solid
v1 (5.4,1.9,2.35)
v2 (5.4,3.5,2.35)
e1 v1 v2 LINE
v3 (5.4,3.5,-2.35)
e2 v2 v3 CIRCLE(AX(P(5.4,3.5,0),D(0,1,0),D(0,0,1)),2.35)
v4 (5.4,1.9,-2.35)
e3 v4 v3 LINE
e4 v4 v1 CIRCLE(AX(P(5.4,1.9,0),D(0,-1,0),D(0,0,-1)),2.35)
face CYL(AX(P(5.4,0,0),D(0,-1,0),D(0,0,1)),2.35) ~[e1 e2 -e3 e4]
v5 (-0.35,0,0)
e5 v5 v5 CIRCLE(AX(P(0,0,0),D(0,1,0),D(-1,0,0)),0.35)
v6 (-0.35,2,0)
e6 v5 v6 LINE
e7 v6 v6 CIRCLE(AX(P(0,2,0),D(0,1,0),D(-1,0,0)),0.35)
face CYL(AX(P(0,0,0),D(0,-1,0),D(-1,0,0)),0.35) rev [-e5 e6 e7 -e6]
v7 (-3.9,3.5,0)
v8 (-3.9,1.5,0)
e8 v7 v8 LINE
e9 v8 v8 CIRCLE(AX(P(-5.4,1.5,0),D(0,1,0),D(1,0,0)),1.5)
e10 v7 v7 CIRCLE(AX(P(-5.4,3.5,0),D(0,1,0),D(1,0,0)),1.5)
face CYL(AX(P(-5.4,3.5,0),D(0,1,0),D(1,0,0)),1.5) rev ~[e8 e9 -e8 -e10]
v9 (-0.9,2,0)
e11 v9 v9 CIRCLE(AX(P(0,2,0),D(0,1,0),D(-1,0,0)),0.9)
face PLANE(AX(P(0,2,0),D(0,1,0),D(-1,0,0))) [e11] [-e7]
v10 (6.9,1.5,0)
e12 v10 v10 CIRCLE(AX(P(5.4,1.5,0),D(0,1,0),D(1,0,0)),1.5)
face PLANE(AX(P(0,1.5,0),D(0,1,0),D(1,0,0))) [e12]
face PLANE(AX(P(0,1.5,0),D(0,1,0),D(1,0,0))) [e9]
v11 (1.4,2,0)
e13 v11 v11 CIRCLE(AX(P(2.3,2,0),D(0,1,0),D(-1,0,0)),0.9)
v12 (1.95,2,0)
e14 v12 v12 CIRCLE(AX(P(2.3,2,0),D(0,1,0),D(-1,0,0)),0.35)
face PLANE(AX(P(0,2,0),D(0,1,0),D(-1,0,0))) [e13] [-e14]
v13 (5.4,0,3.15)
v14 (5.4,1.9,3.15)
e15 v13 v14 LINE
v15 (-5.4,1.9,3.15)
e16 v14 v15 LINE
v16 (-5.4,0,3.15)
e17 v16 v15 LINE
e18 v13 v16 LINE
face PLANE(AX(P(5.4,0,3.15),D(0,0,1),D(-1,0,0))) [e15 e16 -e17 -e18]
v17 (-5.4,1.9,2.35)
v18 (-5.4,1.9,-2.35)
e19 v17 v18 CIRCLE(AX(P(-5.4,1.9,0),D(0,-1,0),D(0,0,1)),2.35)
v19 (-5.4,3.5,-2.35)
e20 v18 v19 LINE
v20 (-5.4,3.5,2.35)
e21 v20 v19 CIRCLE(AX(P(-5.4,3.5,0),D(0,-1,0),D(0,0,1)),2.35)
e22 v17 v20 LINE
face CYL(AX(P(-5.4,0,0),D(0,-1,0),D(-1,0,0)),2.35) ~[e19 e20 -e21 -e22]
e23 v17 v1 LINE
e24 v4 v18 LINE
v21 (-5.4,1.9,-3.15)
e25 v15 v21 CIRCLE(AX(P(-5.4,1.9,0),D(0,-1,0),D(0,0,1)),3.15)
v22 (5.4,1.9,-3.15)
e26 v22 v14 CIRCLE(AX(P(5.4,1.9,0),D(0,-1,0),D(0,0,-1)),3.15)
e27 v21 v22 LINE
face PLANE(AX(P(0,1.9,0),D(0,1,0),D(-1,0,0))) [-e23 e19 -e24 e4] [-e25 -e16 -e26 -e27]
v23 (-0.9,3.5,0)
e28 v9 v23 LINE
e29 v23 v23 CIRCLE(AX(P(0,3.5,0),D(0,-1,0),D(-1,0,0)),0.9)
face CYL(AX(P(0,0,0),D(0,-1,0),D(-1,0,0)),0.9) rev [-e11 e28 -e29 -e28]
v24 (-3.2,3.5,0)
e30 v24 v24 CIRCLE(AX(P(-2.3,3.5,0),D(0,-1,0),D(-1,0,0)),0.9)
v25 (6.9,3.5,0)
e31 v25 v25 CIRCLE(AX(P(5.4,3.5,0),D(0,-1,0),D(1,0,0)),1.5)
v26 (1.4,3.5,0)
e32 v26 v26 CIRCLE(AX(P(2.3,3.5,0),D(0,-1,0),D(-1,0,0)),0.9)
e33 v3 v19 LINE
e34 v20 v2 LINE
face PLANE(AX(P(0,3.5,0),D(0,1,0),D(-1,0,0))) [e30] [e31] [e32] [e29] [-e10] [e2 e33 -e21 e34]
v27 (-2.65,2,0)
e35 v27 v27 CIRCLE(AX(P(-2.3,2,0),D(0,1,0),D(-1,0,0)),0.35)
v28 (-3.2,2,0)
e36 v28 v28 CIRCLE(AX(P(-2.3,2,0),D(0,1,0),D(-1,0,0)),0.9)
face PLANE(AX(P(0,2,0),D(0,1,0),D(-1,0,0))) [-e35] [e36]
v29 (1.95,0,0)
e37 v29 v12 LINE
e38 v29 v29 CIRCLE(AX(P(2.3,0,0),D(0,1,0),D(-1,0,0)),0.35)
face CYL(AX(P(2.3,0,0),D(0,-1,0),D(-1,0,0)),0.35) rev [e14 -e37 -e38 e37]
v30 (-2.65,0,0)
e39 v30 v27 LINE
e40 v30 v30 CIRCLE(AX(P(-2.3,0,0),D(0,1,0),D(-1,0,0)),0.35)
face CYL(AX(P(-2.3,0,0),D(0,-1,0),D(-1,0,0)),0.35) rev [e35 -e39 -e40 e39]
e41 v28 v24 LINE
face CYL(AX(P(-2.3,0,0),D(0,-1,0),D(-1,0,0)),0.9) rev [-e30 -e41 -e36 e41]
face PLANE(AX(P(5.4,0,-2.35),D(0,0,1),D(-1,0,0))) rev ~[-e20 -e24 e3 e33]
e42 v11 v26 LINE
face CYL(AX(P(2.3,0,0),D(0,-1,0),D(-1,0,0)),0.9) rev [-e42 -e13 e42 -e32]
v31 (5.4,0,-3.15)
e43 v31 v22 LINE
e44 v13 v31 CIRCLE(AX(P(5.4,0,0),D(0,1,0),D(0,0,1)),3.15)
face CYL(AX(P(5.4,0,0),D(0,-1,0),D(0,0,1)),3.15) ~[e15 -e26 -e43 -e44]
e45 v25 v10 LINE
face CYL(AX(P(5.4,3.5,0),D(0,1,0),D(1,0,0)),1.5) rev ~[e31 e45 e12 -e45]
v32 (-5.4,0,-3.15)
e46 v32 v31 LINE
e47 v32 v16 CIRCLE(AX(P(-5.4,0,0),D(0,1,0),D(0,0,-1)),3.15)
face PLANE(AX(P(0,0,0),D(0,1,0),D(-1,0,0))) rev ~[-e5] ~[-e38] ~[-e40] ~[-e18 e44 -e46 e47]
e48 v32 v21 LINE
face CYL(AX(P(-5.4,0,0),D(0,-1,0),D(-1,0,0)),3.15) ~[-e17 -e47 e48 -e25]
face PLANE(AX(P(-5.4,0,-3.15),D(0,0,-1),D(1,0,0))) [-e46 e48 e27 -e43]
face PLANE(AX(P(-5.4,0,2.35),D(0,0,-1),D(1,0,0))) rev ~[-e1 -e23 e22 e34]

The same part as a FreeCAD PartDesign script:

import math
import FreeCAD as App
import Part
import Sketcher

doc = App.newDocument("Part")
params = doc.addObject("Spreadsheet::Sheet", "Params")
for row, (alias, value) in enumerate([
    ("sketch1_radius", "2.35 mm"),
    ("sketch1_width", "10.8 mm"),
    ("pad1_length", "3.5 mm"),
    ("sketch2_radius", "3.15 mm"),
    ("sketch2_radius2", "2.35 mm"),
    ("sketch2_width", "10.8 mm"),
    ("pad2_length", "1.9 mm"),
    ("sketch3_diameter", "1.8 mm"),
    ("sketch4_diameter", "1.8 mm"),
    ("sketch4_diameter2", "0.7 mm"),
    ("pad3_length", "2 mm"),
    ("sketch5_diameter", "3 mm"),
    ("pocket2_length", "2 mm"),
], start=1):
    params.set(f"A{row}", alias)
    params.set(f"B{row}", "=" + value)
    params.setAlias(f"B{row}", alias)

body = doc.addObject("PartDesign::Body", "Body")

sketch1 = body.newObject("Sketcher::SketchObject", "Sketch")
sketch1.AttachmentSupport = (doc.getObject("XZ_Plane"), [""])
sketch1.MapMode = "FlatFace"
sketch1.addGeometry([
    Part.LineSegment(App.Vector(-5.4, 2.35, 0), App.Vector(5.4, 2.35, 0)),
    Part.ArcOfCircle(Part.Circle(App.Vector(5.4, 0, 0), App.Vector(0, 0, 1), 2.35), math.radians(-90), math.radians(90)),
    Part.LineSegment(App.Vector(5.4, -2.35, 0), App.Vector(-5.4, -2.35, 0)),
    Part.ArcOfCircle(Part.Circle(App.Vector(-5.4, 0, 0), App.Vector(0, 0, 1), 2.35), math.radians(90), math.radians(270)),
], False)
sketch1.addConstraint([
    Sketcher.Constraint("Tangent", 0, 2, 1, 2),
    Sketcher.Constraint("Tangent", 1, 1, 2, 1),
    Sketcher.Constraint("Tangent", 2, 2, 3, 2),
    Sketcher.Constraint("Tangent", 3, 1, 0, 1),
    Sketcher.Constraint("Horizontal", 0),
    Sketcher.Constraint("Horizontal", 2),
    Sketcher.Constraint("Symmetric", 1, 3, 3, 3, -1, 1),
    Sketcher.Constraint("Radius", 1, 2.35),
    Sketcher.Constraint("DistanceX", 0, 1, 0, 2, 10.8),
])
sketch1.setExpression("Constraints[7]", "Params.sketch1_radius")
sketch1.setExpression("Constraints[8]", "Params.sketch1_width")
pad1 = body.newObject("PartDesign::Pad", "Pad")
pad1.Profile = sketch1
pad1.setExpression("Length", "Params.pad1_length")
pad1.Reversed = True

sketch2 = body.newObject("Sketcher::SketchObject", "Sketch001")
sketch2.AttachmentSupport = (doc.getObject("XZ_Plane"), [""])
sketch2.MapMode = "FlatFace"
sketch2.addGeometry([
    Part.LineSegment(App.Vector(-5.4, 3.15, 0), App.Vector(5.4, 3.15, 0)),
    Part.ArcOfCircle(Part.Circle(App.Vector(5.4, 0, 0), App.Vector(0, 0, 1), 3.15), math.radians(-90), math.radians(90)),
    Part.LineSegment(App.Vector(5.4, -3.15, 0), App.Vector(-5.4, -3.15, 0)),
    Part.ArcOfCircle(Part.Circle(App.Vector(-5.4, 0, 0), App.Vector(0, 0, 1), 3.15), math.radians(90), math.radians(270)),
    Part.LineSegment(App.Vector(5.4, 2.35, 0), App.Vector(-5.4, 2.35, 0)),
    Part.ArcOfCircle(Part.Circle(App.Vector(-5.4, 0, 0), App.Vector(0, 0, 1), 2.35), math.radians(90), math.radians(270)),
    Part.LineSegment(App.Vector(-5.4, -2.35, 0), App.Vector(5.4, -2.35, 0)),
    Part.ArcOfCircle(Part.Circle(App.Vector(5.4, 0, 0), App.Vector(0, 0, 1), 2.35), math.radians(-90), math.radians(90)),
], False)
sketch2.addConstraint([
    Sketcher.Constraint("Tangent", 0, 2, 1, 2),
    Sketcher.Constraint("Tangent", 1, 1, 2, 1),
    Sketcher.Constraint("Tangent", 2, 2, 3, 2),
    Sketcher.Constraint("Tangent", 3, 1, 0, 1),
    Sketcher.Constraint("Tangent", 4, 2, 5, 1),
    Sketcher.Constraint("Tangent", 5, 2, 6, 1),
    Sketcher.Constraint("Tangent", 6, 2, 7, 1),
    Sketcher.Constraint("Tangent", 7, 2, 4, 1),
    Sketcher.Constraint("Horizontal", 0),
    Sketcher.Constraint("Horizontal", 2),
    Sketcher.Constraint("Horizontal", 4),
    Sketcher.Constraint("Horizontal", 6),
    Sketcher.Constraint("Coincident", 5, 3, 3, 3),
    Sketcher.Constraint("Symmetric", 1, 3, 3, 3, -1, 1),
    Sketcher.Constraint("Vertical", 7, 3, 0, 2),
    Sketcher.Constraint("Radius", 1, 3.15),
    Sketcher.Constraint("Radius", 5, 2.35),
    Sketcher.Constraint("DistanceX", 0, 1, 0, 2, 10.8),
])
sketch2.setExpression("Constraints[15]", "Params.sketch2_radius")
sketch2.setExpression("Constraints[16]", "Params.sketch2_radius2")
sketch2.setExpression("Constraints[17]", "Params.sketch2_width")
pad2 = body.newObject("PartDesign::Pad", "Pad001")
pad2.Profile = sketch2
pad2.setExpression("Length", "Params.pad2_length")
pad2.Reversed = True

sketch3 = body.newObject("Sketcher::SketchObject", "Sketch002")
sketch3.AttachmentSupport = (doc.getObject("XZ_Plane"), [""])
sketch3.MapMode = "FlatFace"
sketch3.addGeometry([
    Part.Circle(App.Vector(-2.3, 0, 0), App.Vector(0, 0, 1), 0.9),
    Part.Circle(App.Vector(0, 0, 0), App.Vector(0, 0, 1), 0.9),
    Part.Circle(App.Vector(2.3, 0, 0), App.Vector(0, 0, 1), 0.9),
], False)
sketch3.addConstraint([
    Sketcher.Constraint("Coincident", 1, 3, -1, 1),
    Sketcher.Constraint("Equal", 0, 1),
    Sketcher.Constraint("Equal", 1, 2),
    Sketcher.Constraint("Symmetric", 0, 3, 2, 3, -1, 1),
    Sketcher.Constraint("PointOnObject", 0, 3, -1),
    Sketcher.Constraint("Diameter", 0, 1.8),
    Sketcher.Constraint("DistanceX", 0, 3, 2, 3, 4.6),
])
sketch3.setExpression("Constraints[5]", "Params.sketch3_diameter")
pocket1 = body.newObject("PartDesign::Pocket", "Pocket")
pocket1.Profile = sketch3
pocket1.Type = "ThroughAll"

sketch4 = body.newObject("Sketcher::SketchObject", "Sketch003")
sketch4.AttachmentSupport = (doc.getObject("XZ_Plane"), [""])
sketch4.MapMode = "FlatFace"
sketch4.addGeometry([
    Part.Circle(App.Vector(-2.3, 0, 0), App.Vector(0, 0, 1), 0.9),
    Part.Circle(App.Vector(-2.3, 0, 0), App.Vector(0, 0, 1), 0.35),
    Part.Circle(App.Vector(0, 0, 0), App.Vector(0, 0, 1), 0.9),
    Part.Circle(App.Vector(0, 0, 0), App.Vector(0, 0, 1), 0.35),
    Part.Circle(App.Vector(2.3, 0, 0), App.Vector(0, 0, 1), 0.9),
    Part.Circle(App.Vector(2.3, 0, 0), App.Vector(0, 0, 1), 0.35),
], False)
sketch4.addConstraint([
    Sketcher.Constraint("Coincident", 2, 3, -1, 1),
    Sketcher.Constraint("Coincident", 3, 3, -1, 1),
    Sketcher.Constraint("Coincident", 1, 3, 0, 3),
    Sketcher.Constraint("Coincident", 5, 3, 4, 3),
    Sketcher.Constraint("Equal", 0, 2),
    Sketcher.Constraint("Equal", 1, 3),
    Sketcher.Constraint("Equal", 2, 4),
    Sketcher.Constraint("Equal", 3, 5),
    Sketcher.Constraint("Symmetric", 0, 3, 4, 3, -1, 1),
    Sketcher.Constraint("PointOnObject", 0, 3, -1),
    Sketcher.Constraint("Diameter", 0, 1.8),
    Sketcher.Constraint("Diameter", 1, 0.7),
    Sketcher.Constraint("DistanceX", 0, 3, 4, 3, 4.6),
])
sketch4.setExpression("Constraints[10]", "Params.sketch4_diameter")
sketch4.setExpression("Constraints[11]", "Params.sketch4_diameter2")
pad3 = body.newObject("PartDesign::Pad", "Pad002")
pad3.Profile = sketch4
pad3.setExpression("Length", "Params.pad3_length")
pad3.Reversed = True

sketch5 = body.newObject("Sketcher::SketchObject", "Sketch004")
sketch5.AttachmentSupport = (doc.getObject("XZ_Plane"), [""])
sketch5.MapMode = "FlatFace"
sketch5.AttachmentOffset = App.Placement(App.Vector(0, 0, -3.5), App.Rotation())
sketch5.addGeometry([
    Part.Circle(App.Vector(5.4, 0, 0), App.Vector(0, 0, 1), 1.5),
    Part.Circle(App.Vector(-5.4, 0, 0), App.Vector(0, 0, 1), 1.5),
], False)
sketch5.addConstraint([
    Sketcher.Constraint("Equal", 0, 1),
    Sketcher.Constraint("Symmetric", 0, 3, 1, 3, -1, 1),
    Sketcher.Constraint("PointOnObject", 0, 3, -1),
    Sketcher.Constraint("Diameter", 0, 3.0),
    Sketcher.Constraint("DistanceX", -1, 1, 0, 3, 5.4),
])
sketch5.setExpression("Constraints[3]", "Params.sketch5_diameter")
pocket2 = body.newObject("PartDesign::Pocket", "Pocket001")
pocket2.Profile = sketch5
pocket2.setExpression("Length", "Params.pocket2_length")
pocket2.Reversed = True

doc.recompute()
